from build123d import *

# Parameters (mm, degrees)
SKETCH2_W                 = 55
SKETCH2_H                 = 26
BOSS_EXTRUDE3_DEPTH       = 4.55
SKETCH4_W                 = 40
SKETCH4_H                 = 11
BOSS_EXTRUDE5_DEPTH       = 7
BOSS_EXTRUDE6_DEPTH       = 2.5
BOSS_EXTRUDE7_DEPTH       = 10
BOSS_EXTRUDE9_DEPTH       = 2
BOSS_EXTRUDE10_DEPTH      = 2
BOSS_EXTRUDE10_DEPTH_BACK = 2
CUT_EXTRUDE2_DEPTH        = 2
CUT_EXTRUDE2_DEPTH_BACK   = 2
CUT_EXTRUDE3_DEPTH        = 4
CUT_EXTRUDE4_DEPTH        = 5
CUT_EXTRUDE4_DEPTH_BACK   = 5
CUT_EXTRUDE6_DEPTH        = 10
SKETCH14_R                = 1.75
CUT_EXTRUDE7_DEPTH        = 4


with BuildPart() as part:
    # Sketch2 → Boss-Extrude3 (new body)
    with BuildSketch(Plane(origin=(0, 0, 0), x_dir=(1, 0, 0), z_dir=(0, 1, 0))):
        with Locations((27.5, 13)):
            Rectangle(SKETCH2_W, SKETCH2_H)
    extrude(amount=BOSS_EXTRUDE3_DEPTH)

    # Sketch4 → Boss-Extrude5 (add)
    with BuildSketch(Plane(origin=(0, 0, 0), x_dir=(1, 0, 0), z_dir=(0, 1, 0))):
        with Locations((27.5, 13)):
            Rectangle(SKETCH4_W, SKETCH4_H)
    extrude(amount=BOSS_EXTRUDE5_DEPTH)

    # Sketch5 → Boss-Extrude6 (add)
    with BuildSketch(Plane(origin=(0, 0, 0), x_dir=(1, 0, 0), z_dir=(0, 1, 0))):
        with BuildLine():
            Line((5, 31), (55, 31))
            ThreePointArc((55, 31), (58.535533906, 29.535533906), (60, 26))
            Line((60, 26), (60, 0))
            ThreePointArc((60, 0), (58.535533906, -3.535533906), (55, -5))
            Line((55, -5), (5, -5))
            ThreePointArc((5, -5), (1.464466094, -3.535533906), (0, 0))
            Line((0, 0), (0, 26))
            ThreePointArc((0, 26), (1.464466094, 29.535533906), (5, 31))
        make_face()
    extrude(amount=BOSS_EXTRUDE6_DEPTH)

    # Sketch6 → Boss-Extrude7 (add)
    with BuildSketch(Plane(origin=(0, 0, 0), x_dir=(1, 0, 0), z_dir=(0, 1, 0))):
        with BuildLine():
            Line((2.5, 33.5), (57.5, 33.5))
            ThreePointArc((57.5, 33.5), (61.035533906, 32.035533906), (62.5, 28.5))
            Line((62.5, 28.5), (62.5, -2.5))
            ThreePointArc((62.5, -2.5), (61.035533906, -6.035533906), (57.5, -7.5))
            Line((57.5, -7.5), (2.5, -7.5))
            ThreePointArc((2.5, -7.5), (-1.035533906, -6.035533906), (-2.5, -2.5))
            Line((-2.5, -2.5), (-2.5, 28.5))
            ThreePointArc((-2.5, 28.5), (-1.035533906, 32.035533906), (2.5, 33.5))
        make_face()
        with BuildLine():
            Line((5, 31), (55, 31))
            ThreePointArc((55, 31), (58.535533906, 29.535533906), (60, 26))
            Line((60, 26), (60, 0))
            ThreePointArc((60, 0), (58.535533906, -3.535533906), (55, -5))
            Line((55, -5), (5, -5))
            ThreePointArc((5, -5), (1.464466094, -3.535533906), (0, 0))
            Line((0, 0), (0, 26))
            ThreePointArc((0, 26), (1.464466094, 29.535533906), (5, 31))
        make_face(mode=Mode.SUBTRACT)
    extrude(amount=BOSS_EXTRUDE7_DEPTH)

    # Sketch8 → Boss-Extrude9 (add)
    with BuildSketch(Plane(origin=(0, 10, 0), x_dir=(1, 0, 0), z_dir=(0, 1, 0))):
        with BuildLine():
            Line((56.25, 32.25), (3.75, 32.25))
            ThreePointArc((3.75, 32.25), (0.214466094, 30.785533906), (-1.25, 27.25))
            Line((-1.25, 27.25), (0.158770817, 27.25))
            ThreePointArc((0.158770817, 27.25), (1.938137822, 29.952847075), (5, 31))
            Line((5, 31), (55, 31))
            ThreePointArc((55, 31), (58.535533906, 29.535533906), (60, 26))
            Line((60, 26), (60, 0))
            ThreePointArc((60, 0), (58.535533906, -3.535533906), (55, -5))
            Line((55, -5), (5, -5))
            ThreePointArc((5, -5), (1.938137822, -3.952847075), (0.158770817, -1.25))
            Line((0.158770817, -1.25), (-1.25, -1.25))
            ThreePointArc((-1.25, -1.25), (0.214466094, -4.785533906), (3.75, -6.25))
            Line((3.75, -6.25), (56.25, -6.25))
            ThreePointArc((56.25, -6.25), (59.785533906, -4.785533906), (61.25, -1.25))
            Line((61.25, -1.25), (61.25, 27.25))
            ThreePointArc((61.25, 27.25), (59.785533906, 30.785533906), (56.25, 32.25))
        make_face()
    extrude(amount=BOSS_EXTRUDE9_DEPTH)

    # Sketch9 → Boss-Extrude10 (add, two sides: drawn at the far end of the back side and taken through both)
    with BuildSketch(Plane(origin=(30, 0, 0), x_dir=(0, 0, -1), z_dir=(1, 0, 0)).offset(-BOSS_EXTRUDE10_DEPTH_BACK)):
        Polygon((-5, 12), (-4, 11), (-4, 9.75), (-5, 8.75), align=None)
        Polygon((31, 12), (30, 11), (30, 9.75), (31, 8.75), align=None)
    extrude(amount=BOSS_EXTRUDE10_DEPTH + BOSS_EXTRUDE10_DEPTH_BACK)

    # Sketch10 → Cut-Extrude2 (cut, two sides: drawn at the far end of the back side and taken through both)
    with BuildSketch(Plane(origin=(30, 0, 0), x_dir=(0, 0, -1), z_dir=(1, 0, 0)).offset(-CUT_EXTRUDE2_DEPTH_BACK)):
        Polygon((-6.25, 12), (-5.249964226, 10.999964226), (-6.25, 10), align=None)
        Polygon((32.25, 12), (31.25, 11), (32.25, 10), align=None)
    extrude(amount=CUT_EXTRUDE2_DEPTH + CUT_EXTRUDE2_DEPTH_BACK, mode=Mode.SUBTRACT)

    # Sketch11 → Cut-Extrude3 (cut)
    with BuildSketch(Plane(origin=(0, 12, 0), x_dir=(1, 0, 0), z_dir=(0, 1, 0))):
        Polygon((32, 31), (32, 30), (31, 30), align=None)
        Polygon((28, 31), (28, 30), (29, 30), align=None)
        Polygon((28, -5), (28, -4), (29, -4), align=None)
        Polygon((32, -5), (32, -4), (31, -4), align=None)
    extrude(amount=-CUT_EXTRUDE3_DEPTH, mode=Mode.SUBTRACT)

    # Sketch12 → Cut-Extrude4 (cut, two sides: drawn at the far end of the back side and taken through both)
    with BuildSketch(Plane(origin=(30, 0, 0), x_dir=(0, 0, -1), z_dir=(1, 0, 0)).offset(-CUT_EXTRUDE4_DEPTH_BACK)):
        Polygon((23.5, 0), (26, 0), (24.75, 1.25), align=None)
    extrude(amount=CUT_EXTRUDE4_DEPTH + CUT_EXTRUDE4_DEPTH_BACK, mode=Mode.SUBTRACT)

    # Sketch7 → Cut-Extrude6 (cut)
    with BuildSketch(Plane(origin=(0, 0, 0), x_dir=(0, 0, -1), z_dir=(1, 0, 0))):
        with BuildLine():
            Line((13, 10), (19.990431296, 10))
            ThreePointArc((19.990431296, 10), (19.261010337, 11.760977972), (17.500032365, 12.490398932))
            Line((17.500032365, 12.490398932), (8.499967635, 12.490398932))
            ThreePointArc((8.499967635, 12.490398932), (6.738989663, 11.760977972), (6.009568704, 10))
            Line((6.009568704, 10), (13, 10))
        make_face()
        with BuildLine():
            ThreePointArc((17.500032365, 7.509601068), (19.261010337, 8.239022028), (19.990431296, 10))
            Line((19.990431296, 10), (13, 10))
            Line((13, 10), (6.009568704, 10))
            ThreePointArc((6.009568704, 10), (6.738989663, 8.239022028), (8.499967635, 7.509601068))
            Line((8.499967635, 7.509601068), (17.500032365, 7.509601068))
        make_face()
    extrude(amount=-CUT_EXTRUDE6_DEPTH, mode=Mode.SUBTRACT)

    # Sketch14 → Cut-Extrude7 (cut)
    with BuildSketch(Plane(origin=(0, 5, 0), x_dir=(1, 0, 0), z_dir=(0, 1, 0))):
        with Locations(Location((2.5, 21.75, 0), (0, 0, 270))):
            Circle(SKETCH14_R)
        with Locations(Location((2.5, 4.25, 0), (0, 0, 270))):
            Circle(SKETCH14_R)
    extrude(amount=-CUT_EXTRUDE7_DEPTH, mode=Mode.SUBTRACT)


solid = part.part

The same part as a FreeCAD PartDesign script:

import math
import FreeCAD as App
import Part
import Sketcher
from FreeCAD import Vector

doc = App.newDocument("Part")
body = doc.addObject("PartDesign::Body", "Body")

sketch1 = doc.addObject("Sketcher::SketchObject", "Sketch")
body.addObject(sketch1)
sketch1.AttachmentSupport = (doc.XZ_Plane, [""])
sketch1.MapMode = "FlatFace"
sketch1.addGeometry(Part.LineSegment(Vector(0, -26, 0), Vector(0, 0, 0)), False)
sketch1.addGeometry(Part.LineSegment(Vector(0, 0, 0), Vector(55, 0, 0)), False)
sketch1.addGeometry(Part.LineSegment(Vector(55, 0, 0), Vector(55, -26, 0)), False)
sketch1.addGeometry(Part.LineSegment(Vector(55, -26, 0), Vector(0, -26, 0)), False)
sketch1.addConstraint(Sketcher.Constraint("Coincident", 0, 2, 1, 1))
sketch1.addConstraint(Sketcher.Constraint("Coincident", 1, 2, 2, 1))
sketch1.addConstraint(Sketcher.Constraint("Coincident", 2, 2, 3, 1))
sketch1.addConstraint(Sketcher.Constraint("Coincident", 3, 2, 0, 1))
sketch1.addConstraint(Sketcher.Constraint("Vertical", 0))
sketch1.addConstraint(Sketcher.Constraint("Horizontal", 1))
sketch1.addConstraint(Sketcher.Constraint("Vertical", 2))
sketch1.addConstraint(Sketcher.Constraint("Horizontal", 3))
sketch1.addConstraint(Sketcher.Constraint("Coincident", 0, 2, -1, 1))
sketch1.addConstraint(Sketcher.Constraint("DistanceX", 1, 1, 1, 2, 55.0))
sketch1.addConstraint(Sketcher.Constraint("DistanceY", 0, 1, 0, 2, 26.0))
pad1 = doc.addObject("PartDesign::Pad", "Pad")
body.addObject(pad1)
pad1.Profile = sketch1
pad1.Length = 4.55
pad1.Reversed = True

sketch2 = doc.addObject("Sketcher::SketchObject", "Sketch001")
body.addObject(sketch2)
sketch2.AttachmentSupport = (doc.XZ_Plane, [""])
sketch2.MapMode = "FlatFace"
sketch2.addGeometry(Part.LineSegment(Vector(7.5, -18.5, 0), Vector(7.5, -7.5, 0)), False)
sketch2.addGeometry(Part.LineSegment(Vector(7.5, -7.5, 0), Vector(47.5, -7.5, 0)), False)
sketch2.addGeometry(Part.LineSegment(Vector(47.5, -7.5, 0), Vector(47.5, -18.5, 0)), False)
sketch2.addGeometry(Part.LineSegment(Vector(47.5, -18.5, 0), Vector(7.5, -18.5, 0)), False)
sketch2.addConstraint(Sketcher.Constraint("Coincident", 0, 2, 1, 1))
sketch2.addConstraint(Sketcher.Constraint("Coincident", 1, 2, 2, 1))
sketch2.addConstraint(Sketcher.Constraint("Coincident", 2, 2, 3, 1))
sketch2.addConstraint(Sketcher.Constraint("Coincident", 3, 2, 0, 1))
sketch2.addConstraint(Sketcher.Constraint("Vertical", 0))
sketch2.addConstraint(Sketcher.Constraint("Horizontal", 1))
sketch2.addConstraint(Sketcher.Constraint("Vertical", 2))
sketch2.addConstraint(Sketcher.Constraint("Horizontal", 3))
sketch2.addConstraint(Sketcher.Constraint("DistanceX", 1, 1, 1, 2, 40.0))
sketch2.addConstraint(Sketcher.Constraint("DistanceY", 0, 1, 0, 2, 11.0))
sketch2.addConstraint(Sketcher.Constraint("DistanceX", -1, 1, 0, 2, 7.5))
sketch2.addConstraint(Sketcher.Constraint("DistanceY", 0, 2, -1, 1, 7.5))
pad2 = doc.addObject("PartDesign::Pad", "Pad001")
body.addObject(pad2)
pad2.Profile = sketch2
pad2.Length = 7
pad2.Reversed = True

sketch3 = doc.addObject("Sketcher::SketchObject", "Sketch002")
body.addObject(sketch3)
sketch3.AttachmentSupport = (doc.XZ_Plane, [""])
sketch3.MapMode = "FlatFace"
sketch3.addGeometry(Part.LineSegment(Vector(55, -31, 0), Vector(5, -31, 0)), False)
sketch3.addGeometry(Part.ArcOfCircle(Part.Circle(Vector(5, -26, 0), Vector(0, 0, 1), 5), math.radians(180), math.radians(270)), False)
sketch3.addGeometry(Part.LineSegment(Vector(0, -26, 0), Vector(0, 0, 0)), False)
sketch3.addGeometry(Part.ArcOfCircle(Part.Circle(Vector(5, 0, 0), Vector(0, 0, 1), 5), math.radians(90), math.radians(180)), False)
sketch3.addGeometry(Part.LineSegment(Vector(5, 5, 0), Vector(55, 5, 0)), False)
sketch3.addGeometry(Part.ArcOfCircle(Part.Circle(Vector(55, 0, 0), Vector(0, 0, 1), 5), math.radians(0), math.radians(90)), False)
sketch3.addGeometry(Part.LineSegment(Vector(60, 0, 0), Vector(60, -26, 0)), False)
sketch3.addGeometry(Part.ArcOfCircle(Part.Circle(Vector(55, -26, 0), Vector(0, 0, 1), 5), math.radians(-90), math.radians(0)), False)
sketch3.addConstraint(Sketcher.Constraint("Tangent", 0, 2, 1, 2))
sketch3.addConstraint(Sketcher.Constraint("Tangent", 1, 1, 2, 1))
sketch3.addConstraint(Sketcher.Constraint("Tangent", 2, 2, 3, 2))
sketch3.addConstraint(Sketcher.Constraint("Tangent", 3, 1, 4, 1))
sketch3.addConstraint(Sketcher.Constraint("Tangent", 4, 2, 5, 2))
sketch3.addConstraint(Sketcher.Constraint("Tangent", 5, 1, 6, 1))
sketch3.addConstraint(Sketcher.Constraint("Tangent", 6, 2, 7, 2))
sketch3.addConstraint(Sketcher.Constraint("Tangent", 7, 1, 0, 1))
sketch3.addConstraint(Sketcher.Constraint("Horizontal", 0))
sketch3.addConstraint(Sketcher.Constraint("Vertical", 2))
sketch3.addConstraint(Sketcher.Constraint("Horizontal", 4))
sketch3.addConstraint(Sketcher.Constraint("Vertical", 6))
sketch3.addConstraint(Sketcher.Constraint("Coincident", 2, 2, -1, 1))
sketch3.addConstraint(Sketcher.Constraint("Equal", 1, 3))
sketch3.addConstraint(Sketcher.Constraint("Equal", 3, 5))
sketch3.addConstraint(Sketcher.Constraint("Equal", 5, 7))
sketch3.addConstraint(Sketcher.Constraint("Radius", 1, 5.0))
sketch3.addConstraint(Sketcher.Constraint("DistanceX", 0, 2, 0, 1, 50.0))
sketch3.addConstraint(Sketcher.Constraint("DistanceY", 2, 1, 2, 2, 26.0))
pad3 = doc.addObject("PartDesign::Pad", "Pad002")
body.addObject(pad3)
pad3.Profile = sketch3
pad3.Length = 2.5
pad3.Reversed = True

sketch4 = doc.addObject("Sketcher::SketchObject", "Sketch003")
body.addObject(sketch4)
sketch4.AttachmentSupport = (doc.XZ_Plane, [""])
sketch4.MapMode = "FlatFace"
sketch4.addGeometry(Part.LineSegment(Vector(57.5, -33.5, 0), Vector(2.5, -33.5, 0)), False)
sketch4.addGeometry(Part.ArcOfCircle(Part.Circle(Vector(2.5, -28.5, 0), Vector(0, 0, 1), 5), math.radians(180), math.radians(270)), False)
sketch4.addGeometry(Part.LineSegment(Vector(-2.5, -28.5, 0), Vector(-2.5, 2.5, 0)), False)
sketch4.addGeometry(Part.ArcOfCircle(Part.Circle(Vector(2.5, 2.5, 0), Vector(0, 0, 1), 5), math.radians(90), math.radians(180)), False)
sketch4.addGeometry(Part.LineSegment(Vector(2.5, 7.5, 0), Vector(57.5, 7.5, 0)), False)
sketch4.addGeometry(Part.ArcOfCircle(Part.Circle(Vector(57.5, 2.5, 0), Vector(0, 0, 1), 5), math.radians(0), math.radians(90)), False)
sketch4.addGeometry(Part.LineSegment(Vector(62.5, 2.5, 0), Vector(62.5, -28.5, 0)), False)
sketch4.addGeometry(Part.ArcOfCircle(Part.Circle(Vector(57.5, -28.5, 0), Vector(0, 0, 1), 5), math.radians(-90), math.radians(0)), False)
sketch4.addGeometry(Part.LineSegment(Vector(5, -31, 0), Vector(55, -31, 0)), False)
sketch4.addGeometry(Part.ArcOfCircle(Part.Circle(Vector(55, -26, 0), Vector(0, 0, 1), 5), math.radians(-90), math.radians(0)), False)
sketch4.addGeometry(Part.LineSegment(Vector(60, -26, 0), Vector(60, 0, 0)), False)
sketch4.addGeometry(Part.ArcOfCircle(Part.Circle(Vector(55, 0, 0), Vector(0, 0, 1), 5), math.radians(0), math.radians(90)), False)
sketch4.addGeometry(Part.LineSegment(Vector(55, 5, 0), Vector(5, 5, 0)), False)
sketch4.addGeometry(Part.ArcOfCircle(Part.Circle(Vector(5, 0, 0), Vector(0, 0, 1), 5), math.radians(90), math.radians(180)), False)
sketch4.addGeometry(Part.LineSegment(Vector(0, 0, 0), Vector(0, -26, 0)), False)
sketch4.addGeometry(Part.ArcOfCircle(Part.Circle(Vector(5, -26, 0), Vector(0, 0, 1), 5), math.radians(180), math.radians(270)), False)
sketch4.addConstraint(Sketcher.Constraint("Tangent", 0, 2, 1, 2))
sketch4.addConstraint(Sketcher.Constraint("Tangent", 1, 1, 2, 1))
sketch4.addConstraint(Sketcher.Constraint("Tangent", 2, 2, 3, 2))
sketch4.addConstraint(Sketcher.Constraint("Tangent", 3, 1, 4, 1))
sketch4.addConstraint(Sketcher.Constraint("Tangent", 4, 2, 5, 2))
sketch4.addConstraint(Sketcher.Constraint("Tangent", 5, 1, 6, 1))
sketch4.addConstraint(Sketcher.Constraint("Tangent", 6, 2, 7, 2))
sketch4.addConstraint(Sketcher.Constraint("Tangent", 7, 1, 0, 1))
sketch4.addConstraint(Sketcher.Constraint("Tangent", 8, 2, 9, 1))
sketch4.addConstraint(Sketcher.Constraint("Tangent", 9, 2, 10, 1))
sketch4.addConstraint(Sketcher.Constraint("Tangent", 10, 2, 11, 1))
sketch4.addConstraint(Sketcher.Constraint("Tangent", 11, 2, 12, 1))
sketch4.addConstraint(Sketcher.Constraint("Tangent", 12, 2, 13, 1))
sketch4.addConstraint(Sketcher.Constraint("Tangent", 13, 2, 14, 1))
sketch4.addConstraint(Sketcher.Constraint("Tangent", 14, 2, 15, 1))
sketch4.addConstraint(Sketcher.Constraint("Tangent", 15, 2, 8, 1))
sketch4.addConstraint(Sketcher.Constraint("Horizontal", 0))
sketch4.addConstraint(Sketcher.Constraint("Vertical", 2))
sketch4.addConstraint(Sketcher.Constraint("Horizontal", 4))
sketch4.addConstraint(Sketcher.Constraint("Vertical", 6))
sketch4.addConstraint(Sketcher.Constraint("Horizontal", 8))
sketch4.addConstraint(Sketcher.Constraint("Vertical", 10))
sketch4.addConstraint(Sketcher.Constraint("Horizontal", 12))
sketch4.addConstraint(Sketcher.Constraint("Vertical", 14))
sketch4.addConstraint(Sketcher.Constraint("Coincident", 13, 2, -1, 1))
sketch4.addConstraint(Sketcher.Constraint("Equal", 1, 3))
sketch4.addConstraint(Sketcher.Constraint("Equal", 3, 5))
sketch4.addConstraint(Sketcher.Constraint("Equal", 5, 7))
sketch4.addConstraint(Sketcher.Constraint("Equal", 7, 9))
sketch4.addConstraint(Sketcher.Constraint("Equal", 9, 11))
sketch4.addConstraint(Sketcher.Constraint("Equal", 11, 13))
sketch4.addConstraint(Sketcher.Constraint("Equal", 13, 15))
sketch4.addConstraint(Sketcher.Constraint("Radius", 1, 5.0))
sketch4.addConstraint(Sketcher.Constraint("DistanceX", 0, 2, 0, 1, 55.0))
sketch4.addConstraint(Sketcher.Constraint("DistanceX", 8, 1, 8, 2, 50.0))
sketch4.addConstraint(Sketcher.Constraint("DistanceY", 2, 1, 2, 2, 31.0))
sketch4.addConstraint(Sketcher.Constraint("DistanceY", 10, 1, 10, 2, 26.0))
sketch4.addConstraint(Sketcher.Constraint("DistanceX", -1, 1, 1, 3, 2.5))
sketch4.addConstraint(Sketcher.Constraint("DistanceY", 1, 3, -1, 1, 28.5))
pad4 = doc.addObject("PartDesign::Pad", "Pad003")
body.addObject(pad4)
pad4.Profile = sketch4
pad4.Length = 10
pad4.Reversed = True

sketch5 = doc.addObject("Sketcher::SketchObject", "Sketch004")
body.addObject(sketch5)
sketch5.AttachmentSupport = (doc.XZ_Plane, [""])
sketch5.MapMode = "FlatFace"
sketch5.AttachmentOffset = App.Placement(Vector(0, 0, -10), App.Rotation())
sketch5.addGeometry(Part.LineSegment(Vector(56.25, -32.25, 0), Vector(3.75, -32.25, 0)), False)
sketch5.addGeometry(Part.ArcOfCircle(Part.Circle(Vector(3.75, -27.25, 0), Vector(0, 0, 1), 5), math.radians(180), math.radians(270)), False)
sketch5.addGeometry(Part.LineSegment(Vector(-1.25, -27.25, 0), Vector(0.158771, -27.25, 0)), False)
sketch5.addGeometry(Part.ArcOfCircle(Part.Circle(Vector(5, -26, 0), Vector(0, 0, 1), 5), math.radians(-165.522488), math.radians(-90)), False)
sketch5.addGeometry(Part.LineSegment(Vector(5, -31, 0), Vector(55, -31, 0)), False)
sketch5.addGeometry(Part.ArcOfCircle(Part.Circle(Vector(55, -26, 0), Vector(0, 0, 1), 5), math.radians(-90), math.radians(0)), False)
sketch5.addGeometry(Part.LineSegment(Vector(60, -26, 0), Vector(60, 0, 0)), False)
sketch5.addGeometry(Part.ArcOfCircle(Part.Circle(Vector(55, 0, 0), Vector(0, 0, 1), 5), math.radians(0), math.radians(90)), False)
sketch5.addGeometry(Part.LineSegment(Vector(55, 5, 0), Vector(5, 5, 0)), False)
sketch5.addGeometry(Part.ArcOfCircle(Part.Circle(Vector(5, 0, 0), Vector(0, 0, 1), 5), math.radians(90), math.radians(165.522488)), False)
sketch5.addGeometry(Part.LineSegment(Vector(0.158771, 1.25, 0), Vector(-1.25, 1.25, 0)), False)
sketch5.addGeometry(Part.ArcOfCircle(Part.Circle(Vector(3.75, 1.25, 0), Vector(0, 0, 1), 5), math.radians(90), math.radians(180)), False)
sketch5.addGeometry(Part.LineSegment(Vector(3.75, 6.25, 0), Vector(56.25, 6.25, 0)), False)
sketch5.addGeometry(Part.ArcOfCircle(Part.Circle(Vector(56.25, 1.25, 0), Vector(0, 0, 1), 5), math.radians(0), math.radians(90)), False)
sketch5.addGeometry(Part.LineSegment(Vector(61.25, 1.25, 0), Vector(61.25, -27.25, 0)), False)
sketch5.addGeometry(Part.ArcOfCircle(Part.Circle(Vector(56.25, -27.25, 0), Vector(0, 0, 1), 5), math.radians(-90), math.radians(0)), False)
sketch5.addConstraint(Sketcher.Constraint("Tangent", 0, 2, 1, 2))
sketch5.addConstraint(Sketcher.Constraint("Coincident", 1, 1, 2, 1))
sketch5.addConstraint(Sketcher.Constraint("Coincident", 2, 2, 3, 1))
sketch5.addConstraint(Sketcher.Constraint("Tangent", 3, 2, 4, 1))
sketch5.addConstraint(Sketcher.Constraint("Tangent", 4, 2, 5, 1))
sketch5.addConstraint(Sketcher.Constraint("Tangent", 5, 2, 6, 1))
sketch5.addConstraint(Sketcher.Constraint("Tangent", 6, 2, 7, 1))
sketch5.addConstraint(Sketcher.Constraint("Tangent", 7, 2, 8, 1))
sketch5.addConstraint(Sketcher.Constraint("Tangent", 8, 2, 9, 1))
sketch5.addConstraint(Sketcher.Constraint("Coincident", 9, 2, 10, 1))
sketch5.addConstraint(Sketcher.Constraint("Coincident", 10, 2, 11, 2))
sketch5.addConstraint(Sketcher.Constraint("Tangent", 11, 1, 12, 1))
sketch5.addConstraint(Sketcher.Constraint("Tangent", 12, 2, 13, 2))
sketch5.addConstraint(Sketcher.Constraint("Tangent", 13, 1, 14, 1))
sketch5.addConstraint(Sketcher.Constraint("Tangent", 14, 2, 15, 2))
sketch5.addConstraint(Sketcher.Constraint("Tangent", 15, 1, 0, 1))
sketch5.addConstraint(Sketcher.Constraint("Horizontal", 0))
sketch5.addConstraint(Sketcher.Constraint("Horizontal", 2))
sketch5.addConstraint(Sketcher.Constraint("Horizontal", 4))
sketch5.addConstraint(Sketcher.Constraint("Vertical", 6))
sketch5.addConstraint(Sketcher.Constraint("Horizontal", 8))
sketch5.addConstraint(Sketcher.Constraint("Horizontal", 10))
sketch5.addConstraint(Sketcher.Constraint("Horizontal", 12))
sketch5.addConstraint(Sketcher.Constraint("Vertical", 14))
sketch5.addConstraint(Sketcher.Constraint("Equal", 1, 3))
sketch5.addConstraint(Sketcher.Constraint("Equal", 3, 5))
sketch5.addConstraint(Sketcher.Constraint("Equal", 5, 7))
sketch5.addConstraint(Sketcher.Constraint("Equal", 7, 9))
sketch5.addConstraint(Sketcher.Constraint("Equal", 9, 11))
sketch5.addConstraint(Sketcher.Constraint("Equal", 11, 13))
sketch5.addConstraint(Sketcher.Constraint("Equal", 13, 15))
sketch5.addConstraint(Sketcher.Constraint("PointOnObject", 7, 3, -1))
sketch5.addConstraint(Sketcher.Constraint("Horizontal", 15, 3, 1, 1))
sketch5.addConstraint(Sketcher.Constraint("Horizontal", 13, 3, 9, 2))
sketch5.addConstraint(Sketcher.Constraint("Vertical", 3, 3, 9, 3))
sketch5.addConstraint(Sketcher.Constraint("Vertical", 1, 3, 11, 3))
sketch5.addConstraint(Sketcher.Constraint("Vertical", 2, 2, 9, 2))
sketch5.addConstraint(Sketcher.Constraint("Radius", 1, 5.0))
sketch5.addConstraint(Sketcher.Constraint("DistanceX", 4, 1, 4, 2, 50.0))
sketch5.addConstraint(Sketcher.Constraint("DistanceY", 6, 1, 6, 2, 26.0))
sketch5.addConstraint(Sketcher.Constraint("DistanceX", 0, 2, 0, 1, 52.5))
sketch5.addConstraint(Sketcher.Constraint("DistanceY", 14, 2, 14, 1, 28.5))
sketch5.addConstraint(Sketcher.Constraint("DistanceX", -1, 1, 3, 3, 5.0))
sketch5.addConstraint(Sketcher.Constraint("DistanceX", -1, 1, 1, 3, 3.75))
pad5 = doc.addObject("PartDesign::Pad", "Pad004")
body.addObject(pad5)
pad5.Profile = sketch5
pad5.Length = 2
pad5.Reversed = True

sketch6 = doc.addObject("Sketcher::SketchObject", "Sketch005")
body.addObject(sketch6)
sketch6.AttachmentSupport = (doc.YZ_Plane, [""])
sketch6.MapMode = "FlatFace"
sketch6.AttachmentOffset = App.Placement(Vector(0, 0, 30), App.Rotation())
sketch6.addGeometry(Part.LineSegment(Vector(11, 4, 0), Vector(12, 5, 0)), False)
sketch6.addGeometry(Part.LineSegment(Vector(12, 5, 0), Vector(8.75, 5, 0)), False)
sketch6.addGeometry(Part.LineSegment(Vector(8.75, 5, 0), Vector(9.75, 4, 0)), False)
sketch6.addGeometry(Part.LineSegment(Vector(9.75, 4, 0), Vector(11, 4, 0)), False)
sketch6.addGeometry(Part.LineSegment(Vector(12, -31, 0), Vector(11, -30, 0)), False)
sketch6.addGeometry(Part.LineSegment(Vector(11, -30, 0), Vector(9.75, -30, 0)), False)
sketch6.addGeometry(Part.LineSegment(Vector(9.75, -30, 0), Vector(8.75, -31, 0)), False)
sketch6.addGeometry(Part.LineSegment(Vector(8.75, -31, 0), Vector(12, -31, 0)), False)
sketch6.addConstraint(Sketcher.Constraint("Coincident", 0, 2, 1, 1))
sketch6.addConstraint(Sketcher.Constraint("Coincident", 1, 2, 2, 1))
sketch6.addConstraint(Sketcher.Constraint("Coincident", 2, 2, 3, 1))
sketch6.addConstraint(Sketcher.Constraint("Coincident", 3, 2, 0, 1))
sketch6.addConstraint(Sketcher.Constraint("Coincident", 4, 2, 5, 1))
sketch6.addConstraint(Sketcher.Constraint("Coincident", 5, 2, 6, 1))
sketch6.addConstraint(Sketcher.Constraint("Coincident", 6, 2, 7, 1))
sketch6.addConstraint(Sketcher.Constraint("Coincident", 7, 2, 4, 1))
sketch6.addConstraint(Sketcher.Constraint("Horizontal", 1))
sketch6.addConstraint(Sketcher.Constraint("Horizontal", 3))
sketch6.addConstraint(Sketcher.Constraint("Horizontal", 5))
sketch6.addConstraint(Sketcher.Constraint("Horizontal", 7))
sketch6.addConstraint(Sketcher.Constraint("Perpendicular", 0, 2))
sketch6.addConstraint(Sketcher.Constraint("Parallel", 2, 4))
sketch6.addConstraint(Sketcher.Constraint("Perpendicular", 4, 6))
sketch6.addConstraint(Sketcher.Constraint("Vertical", 3, 2, 4, 2))
sketch6.addConstraint(Sketcher.Constraint("Vertical", 2, 2, 5, 2))
sketch6.addConstraint(Sketcher.Constraint("Vertical", 1, 2, 6, 2))
sketch6.addConstraint(Sketcher.Constraint("Vertical", 0, 2, 7, 2))
sketch6.addConstraint(Sketcher.Constraint("DistanceX", -1, 1, 0, 2, 12.0))
sketch6.addConstraint(Sketcher.Constraint("DistanceY", -1, 1, 0, 2, 5.0))
sketch6.addConstraint(Sketcher.Constraint("DistanceY", -1, 1, 2, 2, 4.0))
sketch6.addConstraint(Sketcher.Constraint("DistanceY", 4, 2, -1, 1, 30.0))
sketch6.addConstraint(Sketcher.Constraint("DistanceX", 1, 2, 1, 1, 3.25))
pad6 = doc.addObject("PartDesign::Pad", "Pad005")
body.addObject(pad6)
pad6.Profile = sketch6
pad6.Type = "TwoLengths"
pad6.Length = 2
pad6.Length2 = 2

sketch7 = doc.addObject("Sketcher::SketchObject", "Sketch006")
body.addObject(sketch7)
sketch7.AttachmentSupport = (doc.YZ_Plane, [""])
sketch7.MapMode = "FlatFace"
sketch7.AttachmentOffset = App.Placement(Vector(0, 0, 30), App.Rotation())
sketch7.addGeometry(Part.LineSegment(Vector(10.999964, 5.249964, 0), Vector(12, 6.25, 0)), False)
sketch7.addGeometry(Part.LineSegment(Vector(12, 6.25, 0), Vector(10, 6.25, 0)), False)
sketch7.addGeometry(Part.LineSegment(Vector(10, 6.25, 0), Vector(10.999964, 5.249964, 0)), False)
sketch7.addGeometry(Part.LineSegment(Vector(12, -32.25, 0), Vector(11, -31.25, 0)), False)
sketch7.addGeometry(Part.LineSegment(Vector(11, -31.25, 0), Vector(10, -32.25, 0)), False)
sketch7.addGeometry(Part.LineSegment(Vector(10, -32.25, 0), Vector(12, -32.25, 0)), False)
sketch7.addConstraint(Sketcher.Constraint("Coincident", 0, 2, 1, 1))
sketch7.addConstraint(Sketcher.Constraint("Coincident", 1, 2, 2, 1))
sketch7.addConstraint(Sketcher.Constraint("Coincident", 2, 2, 0, 1))
sketch7.addConstraint(Sketcher.Constraint("Coincident", 3, 2, 4, 1))
sketch7.addConstraint(Sketcher.Constraint("Coincident", 4, 2, 5, 1))
sketch7.addConstraint(Sketcher.Constraint("Coincident", 5, 2, 3, 1))
sketch7.addConstraint(Sketcher.Constraint("Horizontal", 1))
sketch7.addConstraint(Sketcher.Constraint("Horizontal", 5))
sketch7.addConstraint(Sketcher.Constraint("Perpendicular", 0, 3))
sketch7.addConstraint(Sketcher.Constraint("Perpendicular", 3, 4))
sketch7.addConstraint(Sketcher.Constraint("Vertical", 1, 2, 4, 2))
sketch7.addConstraint(Sketcher.Constraint("Vertical", 0, 2, 5, 2))
sketch7.addConstraint(Sketcher.Constraint("Equal", 3, 4))
sketch7.addConstraint(Sketcher.Constraint("DistanceX", 1, 2, 1, 1, 2.0))
sketch7.addConstraint(Sketcher.Constraint("DistanceX", -1, 1, 0, 2, 12.0))
sketch7.addConstraint(Sketcher.Constraint("DistanceY", 3, 2, 0, 2, 37.5))
sketch7.addConstraint(Sketcher.Constraint("DistanceY", -1, 1, 0, 2, 6.25))
sketch7.addConstraint(Sketcher.Constraint("Distance", 0, 1.414264))
pocket1 = doc.addObject("PartDesign::Pocket", "Pocket")
body.addObject(pocket1)
pocket1.Profile = sketch7
pocket1.Type = "TwoLengths"
pocket1.Length = 2
pocket1.Length2 = 2
pocket1.Reversed = True

sketch8 = doc.addObject("Sketcher::SketchObject", "Sketch007")
body.addObject(sketch8)
sketch8.AttachmentSupport = (doc.XZ_Plane, [""])
sketch8.MapMode = "FlatFace"
sketch8.AttachmentOffset = App.Placement(Vector(0, 0, -12), App.Rotation())
sketch8.addGeometry(Part.LineSegment(Vector(32, -30, 0), Vector(32, -31, 0)), False)
sketch8.addGeometry(Part.LineSegment(Vector(32, -31, 0), Vector(31, -30, 0)), False)
sketch8.addGeometry(Part.LineSegment(Vector(31, -30, 0), Vector(32, -30, 0)), False)
sketch8.addGeometry(Part.LineSegment(Vector(28, -31, 0), Vector(28, -30, 0)), False)
sketch8.addGeometry(Part.LineSegment(Vector(28, -30, 0), Vector(29, -30, 0)), False)
sketch8.addGeometry(Part.LineSegment(Vector(29, -30, 0), Vector(28, -31, 0)), False)
sketch8.addGeometry(Part.LineSegment(Vector(28, 4, 0), Vector(28, 5, 0)), False)
sketch8.addGeometry(Part.LineSegment(Vector(28, 5, 0), Vector(29, 4, 0)), False)
sketch8.addGeometry(Part.LineSegment(Vector(29, 4, 0), Vector(28, 4, 0)), False)
sketch8.addGeometry(Part.LineSegment(Vector(32, 5, 0), Vector(32, 4, 0)), False)
sketch8.addGeometry(Part.LineSegment(Vector(32, 4, 0), Vector(31, 4, 0)), False)
sketch8.addGeometry(Part.LineSegment(Vector(31, 4, 0), Vector(32, 5, 0)), False)
sketch8.addConstraint(Sketcher.Constraint("Coincident", 0, 2, 1, 1))
sketch8.addConstraint(Sketcher.Constraint("Coincident", 1, 2, 2, 1))
sketch8.addConstraint(Sketcher.Constraint("Coincident", 2, 2, 0, 1))
sketch8.addConstraint(Sketcher.Constraint("Coincident", 3, 2, 4, 1))
sketch8.addConstraint(Sketcher.Constraint("Coincident", 4, 2, 5, 1))
sketch8.addConstraint(Sketcher.Constraint("Coincident", 5, 2, 3, 1))
sketch8.addConstraint(Sketcher.Constraint("Coincident", 6, 2, 7, 1))
sketch8.addConstraint(Sketcher.Constraint("Coincident", 7, 2, 8, 1))
sketch8.addConstraint(Sketcher.Constraint("Coincident", 8, 2, 6, 1))
sketch8.addConstraint(Sketcher.Constraint("Coincident", 9, 2, 10, 1))
sketch8.addConstraint(Sketcher.Constraint("Coincident", 10, 2, 11, 1))
sketch8.addConstraint(Sketcher.Constraint("Coincident", 11, 2, 9, 1))
sketch8.addConstraint(Sketcher.Constraint("Vertical", 0))
sketch8.addConstraint(Sketcher.Constraint("Horizontal", 2))
sketch8.addConstraint(Sketcher.Constraint("Vertical", 3))
sketch8.addConstraint(Sketcher.Constraint("Horizontal", 4))
sketch8.addConstraint(Sketcher.Constraint("Vertical", 6))
sketch8.addConstraint(Sketcher.Constraint("Horizontal", 8))
sketch8.addConstraint(Sketcher.Constraint("Vertical", 9))
sketch8.addConstraint(Sketcher.Constraint("Horizontal", 10))
sketch8.addConstraint(Sketcher.Constraint("Perpendicular", 1, 5))
sketch8.addConstraint(Sketcher.Constraint("Perpendicular", 5, 7))
sketch8.addConstraint(Sketcher.Constraint("Perpendicular", 7, 11))
sketch8.addConstraint(Sketcher.Constraint("Horizontal", 2, 2, 3, 2))
sketch8.addConstraint(Sketcher.Constraint("Horizontal", 0, 2, 5, 2))
sketch8.addConstraint(Sketcher.Constraint("Horizontal", 8, 2, 9, 2))
sketch8.addConstraint(Sketcher.Constraint("Horizontal", 6, 2, 11, 2))
sketch8.addConstraint(Sketcher.Constraint("Vertical", 5, 2, 6, 2))
sketch8.addConstraint(Sketcher.Constraint("Vertical", 4, 2, 7, 2))
sketch8.addConstraint(Sketcher.Constraint("Vertical", 2, 2, 9, 2))
sketch8.addConstraint(Sketcher.Constraint("Vertical", 1, 2, 10, 2))
sketch8.addConstraint(Sketcher.Constraint("DistanceX", 2, 1, 2, 2, 1.0))
sketch8.addConstraint(Sketcher.Constraint("DistanceX", -1, 1, 0, 2, 32.0))
sketch8.addConstraint(Sketcher.Constraint("DistanceY", 0, 2, -1, 1, 31.0))
sketch8.addConstraint(Sketcher.Constraint("DistanceX", -1, 1, 3, 2, 28.0))
sketch8.addConstraint(Sketcher.Constraint("DistanceY", -1, 1, 6, 2, 5.0))
pocket2 = doc.addObject("PartDesign::Pocket", "Pocket001")
body.addObject(pocket2)
pocket2.Profile = sketch8
pocket2.Length = 4
pocket2.Reversed = True

sketch9 = doc.addObject("Sketcher::SketchObject", "Sketch008")
body.addObject(sketch9)
sketch9.AttachmentSupport = (doc.YZ_Plane, [""])
sketch9.MapMode = "FlatFace"
sketch9.AttachmentOffset = App.Placement(Vector(0, 0, 30), App.Rotation())
sketch9.addGeometry(Part.LineSegment(Vector(0, -23.5, 0), Vector(0, -26, 0)), False)
sketch9.addGeometry(Part.LineSegment(Vector(0, -26, 0), Vector(1.25, -24.75, 0)), False)
sketch9.addGeometry(Part.LineSegment(Vector(1.25, -24.75, 0), Vector(0, -23.5, 0)), False)
sketch9.addConstraint(Sketcher.Constraint("Coincident", 0, 2, 1, 1))
sketch9.addConstraint(Sketcher.Constraint("Coincident", 1, 2, 2, 1))
sketch9.addConstraint(Sketcher.Constraint("Coincident", 2, 2, 0, 1))
sketch9.addConstraint(Sketcher.Constraint("Vertical", 0))
sketch9.addConstraint(Sketcher.Constraint("PointOnObject", 0, 2, -2))
sketch9.addConstraint(Sketcher.Constraint("Perpendicular", 1, 2))
sketch9.addConstraint(Sketcher.Constraint("Equal", 1, 2))
sketch9.addConstraint(Sketcher.Constraint("DistanceY", 0, 2, 0, 1, 2.5))
sketch9.addConstraint(Sketcher.Constraint("DistanceY", 0, 2, -1, 1, 26.0))
pocket3 = doc.addObject("PartDesign::Pocket", "Pocket002")
body.addObject(pocket3)
pocket3.Profile = sketch9
pocket3.Type = "TwoLengths"
pocket3.Length = 5
pocket3.Length2 = 5
pocket3.Reversed = True

sketch10 = doc.addObject("Sketcher::SketchObject", "Sketch009")
body.addObject(sketch10)
sketch10.AttachmentSupport = (doc.YZ_Plane, [""])
sketch10.MapMode = "FlatFace"
sketch10.addGeometry(Part.ArcOfCircle(Part.Circle(Vector(10, -17.500032, 0), Vector(0, 0, 1), 2.490399), math.radians(-90), math.radians(0)), False)
sketch10.addGeometry(Part.LineSegment(Vector(12.490399, -17.500032, 0), Vector(12.490399, -8.499968, 0)), False)
sketch10.addGeometry(Part.ArcOfCircle(Part.Circle(Vector(10, -8.499968, 0), Vector(0, 0, 1), 2.490399), math.radians(0), math.radians(90)), False)
sketch10.addGeometry(Part.ArcOfCircle(Part.Circle(Vector(10, -8.499968, 0), Vector(0, 0, 1), 2.490399), math.radians(90), math.radians(180)), False)
sketch10.addGeometry(Part.LineSegment(Vector(7.509601, -8.499968, 0), Vector(7.509601, -17.500032, 0)), False)
sketch10.addGeometry(Part.ArcOfCircle(Part.Circle(Vector(10, -17.500032, 0), Vector(0, 0, 1), 2.490399), math.radians(-180), math.radians(-90)), False)
sketch10.addConstraint(Sketcher.Constraint("Tangent", 0, 2, 1, 1))
sketch10.addConstraint(Sketcher.Constraint("Tangent", 1, 2, 2, 1))
sketch10.addConstraint(Sketcher.Constraint("Tangent", 2, 2, 3, 1))
sketch10.addConstraint(Sketcher.Constraint("Tangent", 3, 2, 4, 1))
sketch10.addConstraint(Sketcher.Constraint("Tangent", 4, 2, 5, 1))
sketch10.addConstraint(Sketcher.Constraint("Tangent", 5, 2, 0, 1))
sketch10.addConstraint(Sketcher.Constraint("Vertical", 1))
sketch10.addConstraint(Sketcher.Constraint("Vertical", 4))
sketch10.addConstraint(Sketcher.Constraint("Equal", 0, 2))
sketch10.addConstraint(Sketcher.Constraint("Equal", 2, 3))
sketch10.addConstraint(Sketcher.Constraint("Vertical", 5, 3, 2, 2))
sketch10.addConstraint(Sketcher.Constraint("Vertical", 2, 2, 5, 2))
sketch10.addConstraint(Sketcher.Constraint("DistanceX", -1, 1, 0, 3, 10.0))
sketch10.addConstraint(Sketcher.Constraint("Radius", 0, 2.490399))
sketch10.addConstraint(Sketcher.Constraint("DistanceY", 1, 1, 1, 2, 9.000065))
sketch10.addConstraint(Sketcher.Constraint("DistanceY", 2, 2, -1, 1, 6.009569))
pocket4 = doc.addObject("PartDesign::Pocket", "Pocket003")
body.addObject(pocket4)
pocket4.Profile = sketch10
pocket4.Length = 10

sketch11 = doc.addObject("Sketcher::SketchObject", "Sketch010")
body.addObject(sketch11)
sketch11.AttachmentSupport = (doc.XZ_Plane, [""])
sketch11.MapMode = "FlatFace"
sketch11.AttachmentOffset = App.Placement(Vector(0, 0, -5), App.Rotation())
sketch11.addGeometry(Part.Circle(Vector(2.5, -21.75, 0), Vector(0, 0, 1), 1.75), False)
sketch11.addGeometry(Part.Circle(Vector(2.5, -4.25, 0), Vector(0, 0, 1), 1.75), False)
sketch11.addConstraint(Sketcher.Constraint("Equal", 0, 1))
sketch11.addConstraint(Sketcher.Constraint("Vertical", 0, 3, 1, 3))
sketch11.addConstraint(Sketcher.Constraint("Diameter", 0, 3.5))
sketch11.addConstraint(Sketcher.Constraint("DistanceX", -1, 1, 0, 3, 2.5))
sketch11.addConstraint(Sketcher.Constraint("DistanceY", 0, 3, 1, 3, 17.5))
sketch11.addConstraint(Sketcher.Constraint("DistanceY", 0, 3, -1, 1, 21.75))
pocket5 = doc.addObject("PartDesign::Pocket", "Pocket004")
body.addObject(pocket5)
pocket5.Profile = sketch11
pocket5.Length = 4
pocket5.Reversed = True

doc.recompute()
